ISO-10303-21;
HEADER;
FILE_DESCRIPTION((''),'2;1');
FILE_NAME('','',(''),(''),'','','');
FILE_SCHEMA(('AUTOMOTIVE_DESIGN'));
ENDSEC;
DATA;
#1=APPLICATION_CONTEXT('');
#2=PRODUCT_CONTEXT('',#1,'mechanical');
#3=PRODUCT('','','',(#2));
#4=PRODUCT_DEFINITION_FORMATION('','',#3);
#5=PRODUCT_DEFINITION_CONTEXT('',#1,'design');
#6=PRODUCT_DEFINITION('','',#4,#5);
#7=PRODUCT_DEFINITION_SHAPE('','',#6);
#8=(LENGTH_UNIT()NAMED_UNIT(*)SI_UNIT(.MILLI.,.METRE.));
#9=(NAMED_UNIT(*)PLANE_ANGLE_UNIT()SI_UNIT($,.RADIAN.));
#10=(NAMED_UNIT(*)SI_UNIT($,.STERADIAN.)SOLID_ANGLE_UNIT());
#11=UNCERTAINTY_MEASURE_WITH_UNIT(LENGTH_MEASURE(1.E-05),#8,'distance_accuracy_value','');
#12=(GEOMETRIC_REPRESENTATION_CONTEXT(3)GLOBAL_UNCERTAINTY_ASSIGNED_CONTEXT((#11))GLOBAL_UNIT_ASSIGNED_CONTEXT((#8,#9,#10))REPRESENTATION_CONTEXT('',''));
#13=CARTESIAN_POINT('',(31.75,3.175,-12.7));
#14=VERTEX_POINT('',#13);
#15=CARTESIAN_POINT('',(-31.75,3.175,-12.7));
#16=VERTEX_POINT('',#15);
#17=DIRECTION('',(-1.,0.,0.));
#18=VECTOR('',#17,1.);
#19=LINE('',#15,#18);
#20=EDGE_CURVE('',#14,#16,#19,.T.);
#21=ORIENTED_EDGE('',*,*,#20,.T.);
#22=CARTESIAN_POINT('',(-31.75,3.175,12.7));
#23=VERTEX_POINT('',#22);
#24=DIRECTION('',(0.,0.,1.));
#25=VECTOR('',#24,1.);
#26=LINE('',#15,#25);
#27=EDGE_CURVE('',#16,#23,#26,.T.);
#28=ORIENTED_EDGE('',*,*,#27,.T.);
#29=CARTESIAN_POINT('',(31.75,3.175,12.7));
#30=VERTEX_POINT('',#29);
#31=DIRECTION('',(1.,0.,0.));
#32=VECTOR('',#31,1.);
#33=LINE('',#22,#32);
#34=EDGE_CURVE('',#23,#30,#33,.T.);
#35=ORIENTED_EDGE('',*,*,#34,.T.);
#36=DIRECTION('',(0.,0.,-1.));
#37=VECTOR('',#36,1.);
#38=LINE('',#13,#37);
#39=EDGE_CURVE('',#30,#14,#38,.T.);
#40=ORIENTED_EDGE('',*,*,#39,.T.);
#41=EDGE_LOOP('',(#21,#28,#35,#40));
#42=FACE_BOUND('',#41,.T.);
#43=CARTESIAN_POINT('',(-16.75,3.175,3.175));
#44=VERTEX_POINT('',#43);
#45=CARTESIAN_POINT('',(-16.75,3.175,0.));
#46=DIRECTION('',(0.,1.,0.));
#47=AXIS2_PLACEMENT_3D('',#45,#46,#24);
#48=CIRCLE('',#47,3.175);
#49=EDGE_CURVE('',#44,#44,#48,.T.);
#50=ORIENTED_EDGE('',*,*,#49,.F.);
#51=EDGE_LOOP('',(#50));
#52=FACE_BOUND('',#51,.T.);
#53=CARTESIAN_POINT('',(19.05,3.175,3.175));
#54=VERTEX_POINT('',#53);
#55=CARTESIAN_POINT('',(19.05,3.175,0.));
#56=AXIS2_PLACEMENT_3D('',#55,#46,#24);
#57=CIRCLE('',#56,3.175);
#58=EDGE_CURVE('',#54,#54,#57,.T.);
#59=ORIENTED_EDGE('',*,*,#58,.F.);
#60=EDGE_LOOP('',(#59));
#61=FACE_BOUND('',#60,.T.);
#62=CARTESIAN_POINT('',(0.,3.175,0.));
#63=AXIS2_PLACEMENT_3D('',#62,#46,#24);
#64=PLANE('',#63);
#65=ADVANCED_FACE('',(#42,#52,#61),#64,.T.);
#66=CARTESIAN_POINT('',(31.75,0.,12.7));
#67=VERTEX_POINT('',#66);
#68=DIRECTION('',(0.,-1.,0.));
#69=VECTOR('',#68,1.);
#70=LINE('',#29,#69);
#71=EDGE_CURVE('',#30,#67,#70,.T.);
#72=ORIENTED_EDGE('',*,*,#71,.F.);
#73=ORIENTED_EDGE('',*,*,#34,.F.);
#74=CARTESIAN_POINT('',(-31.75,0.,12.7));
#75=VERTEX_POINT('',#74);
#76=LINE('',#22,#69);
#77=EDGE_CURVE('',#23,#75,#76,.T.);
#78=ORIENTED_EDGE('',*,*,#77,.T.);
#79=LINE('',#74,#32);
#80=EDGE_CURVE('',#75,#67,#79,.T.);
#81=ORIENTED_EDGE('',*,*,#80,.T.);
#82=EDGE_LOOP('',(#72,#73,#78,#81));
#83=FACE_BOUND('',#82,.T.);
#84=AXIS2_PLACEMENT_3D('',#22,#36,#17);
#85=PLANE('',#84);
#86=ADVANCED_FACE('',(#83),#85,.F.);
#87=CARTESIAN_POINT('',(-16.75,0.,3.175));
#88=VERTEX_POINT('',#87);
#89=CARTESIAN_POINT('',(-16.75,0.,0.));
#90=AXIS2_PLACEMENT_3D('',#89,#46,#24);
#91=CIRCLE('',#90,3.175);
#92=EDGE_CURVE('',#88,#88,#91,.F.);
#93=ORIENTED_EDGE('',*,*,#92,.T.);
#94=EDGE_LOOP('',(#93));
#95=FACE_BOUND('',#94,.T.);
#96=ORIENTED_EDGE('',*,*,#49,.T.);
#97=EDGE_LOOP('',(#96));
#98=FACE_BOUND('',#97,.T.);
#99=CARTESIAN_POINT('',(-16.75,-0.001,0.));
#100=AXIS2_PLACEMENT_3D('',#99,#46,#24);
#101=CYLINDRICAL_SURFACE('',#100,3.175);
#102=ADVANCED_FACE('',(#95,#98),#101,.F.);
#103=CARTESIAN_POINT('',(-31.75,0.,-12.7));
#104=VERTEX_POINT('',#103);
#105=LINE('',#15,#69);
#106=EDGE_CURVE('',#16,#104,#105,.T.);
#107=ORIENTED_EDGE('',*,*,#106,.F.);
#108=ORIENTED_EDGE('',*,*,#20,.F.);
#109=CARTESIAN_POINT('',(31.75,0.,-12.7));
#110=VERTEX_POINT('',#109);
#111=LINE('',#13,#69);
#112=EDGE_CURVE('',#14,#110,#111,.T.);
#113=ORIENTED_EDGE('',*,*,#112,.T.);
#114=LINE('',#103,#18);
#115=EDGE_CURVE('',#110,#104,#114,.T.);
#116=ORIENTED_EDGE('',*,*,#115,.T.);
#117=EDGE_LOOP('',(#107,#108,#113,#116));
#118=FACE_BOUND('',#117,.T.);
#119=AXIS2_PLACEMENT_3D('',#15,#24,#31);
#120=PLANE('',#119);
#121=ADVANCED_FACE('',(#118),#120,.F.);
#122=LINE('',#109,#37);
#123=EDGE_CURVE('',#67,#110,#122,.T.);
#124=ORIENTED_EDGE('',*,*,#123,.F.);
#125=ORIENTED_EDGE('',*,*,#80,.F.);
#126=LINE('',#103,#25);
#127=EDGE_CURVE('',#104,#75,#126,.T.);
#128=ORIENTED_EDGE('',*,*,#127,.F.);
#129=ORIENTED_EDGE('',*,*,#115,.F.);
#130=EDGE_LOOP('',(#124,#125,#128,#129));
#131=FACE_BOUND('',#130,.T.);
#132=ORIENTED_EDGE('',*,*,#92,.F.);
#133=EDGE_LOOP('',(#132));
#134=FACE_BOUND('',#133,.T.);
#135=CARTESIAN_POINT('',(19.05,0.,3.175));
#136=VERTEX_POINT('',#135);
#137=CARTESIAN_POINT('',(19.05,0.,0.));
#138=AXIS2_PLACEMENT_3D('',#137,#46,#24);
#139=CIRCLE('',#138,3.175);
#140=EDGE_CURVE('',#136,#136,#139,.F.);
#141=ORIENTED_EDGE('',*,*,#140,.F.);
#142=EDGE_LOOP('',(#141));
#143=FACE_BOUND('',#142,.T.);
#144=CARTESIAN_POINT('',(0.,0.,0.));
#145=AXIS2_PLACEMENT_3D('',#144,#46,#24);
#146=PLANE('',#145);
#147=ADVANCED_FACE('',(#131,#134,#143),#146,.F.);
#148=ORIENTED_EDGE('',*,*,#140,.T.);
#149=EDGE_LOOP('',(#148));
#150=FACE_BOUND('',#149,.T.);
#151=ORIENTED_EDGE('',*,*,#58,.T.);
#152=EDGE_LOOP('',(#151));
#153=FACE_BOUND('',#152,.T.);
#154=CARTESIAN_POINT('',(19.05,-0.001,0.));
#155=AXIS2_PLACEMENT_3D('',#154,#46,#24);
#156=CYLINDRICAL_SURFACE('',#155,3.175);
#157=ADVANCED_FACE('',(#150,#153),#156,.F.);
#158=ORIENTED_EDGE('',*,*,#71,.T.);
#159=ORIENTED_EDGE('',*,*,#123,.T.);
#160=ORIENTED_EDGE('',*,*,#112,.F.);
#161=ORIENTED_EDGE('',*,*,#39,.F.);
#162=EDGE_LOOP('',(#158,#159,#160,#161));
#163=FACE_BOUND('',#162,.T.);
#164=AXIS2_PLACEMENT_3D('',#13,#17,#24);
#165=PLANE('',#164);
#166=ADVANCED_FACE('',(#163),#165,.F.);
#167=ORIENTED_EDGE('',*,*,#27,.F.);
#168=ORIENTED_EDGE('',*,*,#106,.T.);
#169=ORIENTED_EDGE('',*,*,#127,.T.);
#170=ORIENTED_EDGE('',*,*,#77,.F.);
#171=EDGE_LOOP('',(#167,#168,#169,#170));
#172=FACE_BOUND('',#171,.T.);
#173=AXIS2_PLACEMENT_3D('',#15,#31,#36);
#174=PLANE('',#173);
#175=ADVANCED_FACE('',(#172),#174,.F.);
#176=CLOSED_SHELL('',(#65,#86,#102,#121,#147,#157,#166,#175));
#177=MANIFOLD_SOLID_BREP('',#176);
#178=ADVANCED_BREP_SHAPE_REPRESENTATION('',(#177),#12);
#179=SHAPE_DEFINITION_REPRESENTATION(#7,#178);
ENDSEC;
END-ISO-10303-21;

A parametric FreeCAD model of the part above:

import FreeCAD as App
import Part
import Sketcher
from FreeCAD import Vector
Q = App.Units.Quantity


def add_polygon(sketch, points):
    """Adds a closed chain of lines whose ends are joined by coincident constraints."""
    first, n = sketch.GeometryCount, len(points)
    for a, b in zip(points, points[1:] + points[:1]):
        sketch.addGeometry(Part.LineSegment(App.Vector(*a, 0), App.Vector(*b, 0)), False)
    for i in range(n):
        sketch.addConstraint(Sketcher.Constraint("Coincident", first + i, 2, first + (i + 1) % n, 1))

doc = App.newDocument("Part")
body = doc.addObject("PartDesign::Body", "Body")

# Sketch on XZ plane
sketch1 = body.newObject("Sketcher::SketchObject", "Sketch")
sketch1.AttachmentSupport = (doc.getObject("XZ_Plane"), [""])
sketch1.MapMode = "FlatFace"
add_polygon(sketch1, [(-32, -13), (-32, 13), (32, 13), (32, -13)])  # lines 0-3
sketch1.addConstraint([
    Sketcher.Constraint("Vertical", 0),
    Sketcher.Constraint("Horizontal", 1),
    Sketcher.Constraint("Vertical", 2),
    Sketcher.Constraint("Horizontal", 3),
    Sketcher.Constraint("Symmetric", 0, 2, 2, 2, -1, 1),
    Sketcher.Constraint("DistanceY", 0, 1, 0, 2, Q("1 in")),
    Sketcher.Constraint("DistanceX", 1, 1, 1, 2, Q("2.5 in")),
])
pad1 = body.newObject("PartDesign::Pad", "Pad")
pad1.Profile = sketch1
pad1.Length = Q("0.125 in")
pad1.Reversed = True

# Sketch on XZ plane
sketch2 = body.newObject("Sketcher::SketchObject", "Sketch001")
sketch2.AttachmentSupport = (doc.getObject("XZ_Plane"), [""])
sketch2.MapMode = "FlatFace"
sketch2.AttachmentOffset = App.Placement(Vector(0, 0, -0.125 * 25.4), App.Rotation())
sketch2.addGeometry(Part.Circle(Vector(-16.8, 0, 0), Vector(0, 0, 1), 3.2), False)
sketch2.addConstraint([
    Sketcher.Constraint("PointOnObject", 0, 3, -1),
    Sketcher.Constraint("Diameter", 0, Q("0.25 in")),
    Sketcher.Constraint("DistanceX", 0, 3, -1, 1, Q("16.75 mm")),
])
pocket1 = body.newObject("PartDesign::Pocket", "Pocket")
pocket1.Profile = sketch2
pocket1.Type = "UpToFirst"
pocket1.Reversed = True

# Sketch on XZ plane
sketch3 = body.newObject("Sketcher::SketchObject", "Sketch002")
sketch3.AttachmentSupport = (doc.getObject("XZ_Plane"), [""])
sketch3.MapMode = "FlatFace"
sketch3.AttachmentOffset = App.Placement(Vector(0, 0, -0.125 * 25.4), App.Rotation())
sketch3.addGeometry(Part.Circle(Vector(19.1, 0, 0), Vector(0, 0, 1), 3.2), False)
sketch3.addConstraint([
    Sketcher.Constraint("PointOnObject", 0, 3, -1),
    Sketcher.Constraint("Diameter", 0, Q("0.25 in")),
    Sketcher.Constraint("DistanceX", -1, 1, 0, 3, Q("0.75 in")),
])
pocket2 = body.newObject("PartDesign::Pocket", "Pocket001")
pocket2.Profile = sketch3
pocket2.Type = "UpToFirst"
pocket2.Reversed = True

doc.recompute()
